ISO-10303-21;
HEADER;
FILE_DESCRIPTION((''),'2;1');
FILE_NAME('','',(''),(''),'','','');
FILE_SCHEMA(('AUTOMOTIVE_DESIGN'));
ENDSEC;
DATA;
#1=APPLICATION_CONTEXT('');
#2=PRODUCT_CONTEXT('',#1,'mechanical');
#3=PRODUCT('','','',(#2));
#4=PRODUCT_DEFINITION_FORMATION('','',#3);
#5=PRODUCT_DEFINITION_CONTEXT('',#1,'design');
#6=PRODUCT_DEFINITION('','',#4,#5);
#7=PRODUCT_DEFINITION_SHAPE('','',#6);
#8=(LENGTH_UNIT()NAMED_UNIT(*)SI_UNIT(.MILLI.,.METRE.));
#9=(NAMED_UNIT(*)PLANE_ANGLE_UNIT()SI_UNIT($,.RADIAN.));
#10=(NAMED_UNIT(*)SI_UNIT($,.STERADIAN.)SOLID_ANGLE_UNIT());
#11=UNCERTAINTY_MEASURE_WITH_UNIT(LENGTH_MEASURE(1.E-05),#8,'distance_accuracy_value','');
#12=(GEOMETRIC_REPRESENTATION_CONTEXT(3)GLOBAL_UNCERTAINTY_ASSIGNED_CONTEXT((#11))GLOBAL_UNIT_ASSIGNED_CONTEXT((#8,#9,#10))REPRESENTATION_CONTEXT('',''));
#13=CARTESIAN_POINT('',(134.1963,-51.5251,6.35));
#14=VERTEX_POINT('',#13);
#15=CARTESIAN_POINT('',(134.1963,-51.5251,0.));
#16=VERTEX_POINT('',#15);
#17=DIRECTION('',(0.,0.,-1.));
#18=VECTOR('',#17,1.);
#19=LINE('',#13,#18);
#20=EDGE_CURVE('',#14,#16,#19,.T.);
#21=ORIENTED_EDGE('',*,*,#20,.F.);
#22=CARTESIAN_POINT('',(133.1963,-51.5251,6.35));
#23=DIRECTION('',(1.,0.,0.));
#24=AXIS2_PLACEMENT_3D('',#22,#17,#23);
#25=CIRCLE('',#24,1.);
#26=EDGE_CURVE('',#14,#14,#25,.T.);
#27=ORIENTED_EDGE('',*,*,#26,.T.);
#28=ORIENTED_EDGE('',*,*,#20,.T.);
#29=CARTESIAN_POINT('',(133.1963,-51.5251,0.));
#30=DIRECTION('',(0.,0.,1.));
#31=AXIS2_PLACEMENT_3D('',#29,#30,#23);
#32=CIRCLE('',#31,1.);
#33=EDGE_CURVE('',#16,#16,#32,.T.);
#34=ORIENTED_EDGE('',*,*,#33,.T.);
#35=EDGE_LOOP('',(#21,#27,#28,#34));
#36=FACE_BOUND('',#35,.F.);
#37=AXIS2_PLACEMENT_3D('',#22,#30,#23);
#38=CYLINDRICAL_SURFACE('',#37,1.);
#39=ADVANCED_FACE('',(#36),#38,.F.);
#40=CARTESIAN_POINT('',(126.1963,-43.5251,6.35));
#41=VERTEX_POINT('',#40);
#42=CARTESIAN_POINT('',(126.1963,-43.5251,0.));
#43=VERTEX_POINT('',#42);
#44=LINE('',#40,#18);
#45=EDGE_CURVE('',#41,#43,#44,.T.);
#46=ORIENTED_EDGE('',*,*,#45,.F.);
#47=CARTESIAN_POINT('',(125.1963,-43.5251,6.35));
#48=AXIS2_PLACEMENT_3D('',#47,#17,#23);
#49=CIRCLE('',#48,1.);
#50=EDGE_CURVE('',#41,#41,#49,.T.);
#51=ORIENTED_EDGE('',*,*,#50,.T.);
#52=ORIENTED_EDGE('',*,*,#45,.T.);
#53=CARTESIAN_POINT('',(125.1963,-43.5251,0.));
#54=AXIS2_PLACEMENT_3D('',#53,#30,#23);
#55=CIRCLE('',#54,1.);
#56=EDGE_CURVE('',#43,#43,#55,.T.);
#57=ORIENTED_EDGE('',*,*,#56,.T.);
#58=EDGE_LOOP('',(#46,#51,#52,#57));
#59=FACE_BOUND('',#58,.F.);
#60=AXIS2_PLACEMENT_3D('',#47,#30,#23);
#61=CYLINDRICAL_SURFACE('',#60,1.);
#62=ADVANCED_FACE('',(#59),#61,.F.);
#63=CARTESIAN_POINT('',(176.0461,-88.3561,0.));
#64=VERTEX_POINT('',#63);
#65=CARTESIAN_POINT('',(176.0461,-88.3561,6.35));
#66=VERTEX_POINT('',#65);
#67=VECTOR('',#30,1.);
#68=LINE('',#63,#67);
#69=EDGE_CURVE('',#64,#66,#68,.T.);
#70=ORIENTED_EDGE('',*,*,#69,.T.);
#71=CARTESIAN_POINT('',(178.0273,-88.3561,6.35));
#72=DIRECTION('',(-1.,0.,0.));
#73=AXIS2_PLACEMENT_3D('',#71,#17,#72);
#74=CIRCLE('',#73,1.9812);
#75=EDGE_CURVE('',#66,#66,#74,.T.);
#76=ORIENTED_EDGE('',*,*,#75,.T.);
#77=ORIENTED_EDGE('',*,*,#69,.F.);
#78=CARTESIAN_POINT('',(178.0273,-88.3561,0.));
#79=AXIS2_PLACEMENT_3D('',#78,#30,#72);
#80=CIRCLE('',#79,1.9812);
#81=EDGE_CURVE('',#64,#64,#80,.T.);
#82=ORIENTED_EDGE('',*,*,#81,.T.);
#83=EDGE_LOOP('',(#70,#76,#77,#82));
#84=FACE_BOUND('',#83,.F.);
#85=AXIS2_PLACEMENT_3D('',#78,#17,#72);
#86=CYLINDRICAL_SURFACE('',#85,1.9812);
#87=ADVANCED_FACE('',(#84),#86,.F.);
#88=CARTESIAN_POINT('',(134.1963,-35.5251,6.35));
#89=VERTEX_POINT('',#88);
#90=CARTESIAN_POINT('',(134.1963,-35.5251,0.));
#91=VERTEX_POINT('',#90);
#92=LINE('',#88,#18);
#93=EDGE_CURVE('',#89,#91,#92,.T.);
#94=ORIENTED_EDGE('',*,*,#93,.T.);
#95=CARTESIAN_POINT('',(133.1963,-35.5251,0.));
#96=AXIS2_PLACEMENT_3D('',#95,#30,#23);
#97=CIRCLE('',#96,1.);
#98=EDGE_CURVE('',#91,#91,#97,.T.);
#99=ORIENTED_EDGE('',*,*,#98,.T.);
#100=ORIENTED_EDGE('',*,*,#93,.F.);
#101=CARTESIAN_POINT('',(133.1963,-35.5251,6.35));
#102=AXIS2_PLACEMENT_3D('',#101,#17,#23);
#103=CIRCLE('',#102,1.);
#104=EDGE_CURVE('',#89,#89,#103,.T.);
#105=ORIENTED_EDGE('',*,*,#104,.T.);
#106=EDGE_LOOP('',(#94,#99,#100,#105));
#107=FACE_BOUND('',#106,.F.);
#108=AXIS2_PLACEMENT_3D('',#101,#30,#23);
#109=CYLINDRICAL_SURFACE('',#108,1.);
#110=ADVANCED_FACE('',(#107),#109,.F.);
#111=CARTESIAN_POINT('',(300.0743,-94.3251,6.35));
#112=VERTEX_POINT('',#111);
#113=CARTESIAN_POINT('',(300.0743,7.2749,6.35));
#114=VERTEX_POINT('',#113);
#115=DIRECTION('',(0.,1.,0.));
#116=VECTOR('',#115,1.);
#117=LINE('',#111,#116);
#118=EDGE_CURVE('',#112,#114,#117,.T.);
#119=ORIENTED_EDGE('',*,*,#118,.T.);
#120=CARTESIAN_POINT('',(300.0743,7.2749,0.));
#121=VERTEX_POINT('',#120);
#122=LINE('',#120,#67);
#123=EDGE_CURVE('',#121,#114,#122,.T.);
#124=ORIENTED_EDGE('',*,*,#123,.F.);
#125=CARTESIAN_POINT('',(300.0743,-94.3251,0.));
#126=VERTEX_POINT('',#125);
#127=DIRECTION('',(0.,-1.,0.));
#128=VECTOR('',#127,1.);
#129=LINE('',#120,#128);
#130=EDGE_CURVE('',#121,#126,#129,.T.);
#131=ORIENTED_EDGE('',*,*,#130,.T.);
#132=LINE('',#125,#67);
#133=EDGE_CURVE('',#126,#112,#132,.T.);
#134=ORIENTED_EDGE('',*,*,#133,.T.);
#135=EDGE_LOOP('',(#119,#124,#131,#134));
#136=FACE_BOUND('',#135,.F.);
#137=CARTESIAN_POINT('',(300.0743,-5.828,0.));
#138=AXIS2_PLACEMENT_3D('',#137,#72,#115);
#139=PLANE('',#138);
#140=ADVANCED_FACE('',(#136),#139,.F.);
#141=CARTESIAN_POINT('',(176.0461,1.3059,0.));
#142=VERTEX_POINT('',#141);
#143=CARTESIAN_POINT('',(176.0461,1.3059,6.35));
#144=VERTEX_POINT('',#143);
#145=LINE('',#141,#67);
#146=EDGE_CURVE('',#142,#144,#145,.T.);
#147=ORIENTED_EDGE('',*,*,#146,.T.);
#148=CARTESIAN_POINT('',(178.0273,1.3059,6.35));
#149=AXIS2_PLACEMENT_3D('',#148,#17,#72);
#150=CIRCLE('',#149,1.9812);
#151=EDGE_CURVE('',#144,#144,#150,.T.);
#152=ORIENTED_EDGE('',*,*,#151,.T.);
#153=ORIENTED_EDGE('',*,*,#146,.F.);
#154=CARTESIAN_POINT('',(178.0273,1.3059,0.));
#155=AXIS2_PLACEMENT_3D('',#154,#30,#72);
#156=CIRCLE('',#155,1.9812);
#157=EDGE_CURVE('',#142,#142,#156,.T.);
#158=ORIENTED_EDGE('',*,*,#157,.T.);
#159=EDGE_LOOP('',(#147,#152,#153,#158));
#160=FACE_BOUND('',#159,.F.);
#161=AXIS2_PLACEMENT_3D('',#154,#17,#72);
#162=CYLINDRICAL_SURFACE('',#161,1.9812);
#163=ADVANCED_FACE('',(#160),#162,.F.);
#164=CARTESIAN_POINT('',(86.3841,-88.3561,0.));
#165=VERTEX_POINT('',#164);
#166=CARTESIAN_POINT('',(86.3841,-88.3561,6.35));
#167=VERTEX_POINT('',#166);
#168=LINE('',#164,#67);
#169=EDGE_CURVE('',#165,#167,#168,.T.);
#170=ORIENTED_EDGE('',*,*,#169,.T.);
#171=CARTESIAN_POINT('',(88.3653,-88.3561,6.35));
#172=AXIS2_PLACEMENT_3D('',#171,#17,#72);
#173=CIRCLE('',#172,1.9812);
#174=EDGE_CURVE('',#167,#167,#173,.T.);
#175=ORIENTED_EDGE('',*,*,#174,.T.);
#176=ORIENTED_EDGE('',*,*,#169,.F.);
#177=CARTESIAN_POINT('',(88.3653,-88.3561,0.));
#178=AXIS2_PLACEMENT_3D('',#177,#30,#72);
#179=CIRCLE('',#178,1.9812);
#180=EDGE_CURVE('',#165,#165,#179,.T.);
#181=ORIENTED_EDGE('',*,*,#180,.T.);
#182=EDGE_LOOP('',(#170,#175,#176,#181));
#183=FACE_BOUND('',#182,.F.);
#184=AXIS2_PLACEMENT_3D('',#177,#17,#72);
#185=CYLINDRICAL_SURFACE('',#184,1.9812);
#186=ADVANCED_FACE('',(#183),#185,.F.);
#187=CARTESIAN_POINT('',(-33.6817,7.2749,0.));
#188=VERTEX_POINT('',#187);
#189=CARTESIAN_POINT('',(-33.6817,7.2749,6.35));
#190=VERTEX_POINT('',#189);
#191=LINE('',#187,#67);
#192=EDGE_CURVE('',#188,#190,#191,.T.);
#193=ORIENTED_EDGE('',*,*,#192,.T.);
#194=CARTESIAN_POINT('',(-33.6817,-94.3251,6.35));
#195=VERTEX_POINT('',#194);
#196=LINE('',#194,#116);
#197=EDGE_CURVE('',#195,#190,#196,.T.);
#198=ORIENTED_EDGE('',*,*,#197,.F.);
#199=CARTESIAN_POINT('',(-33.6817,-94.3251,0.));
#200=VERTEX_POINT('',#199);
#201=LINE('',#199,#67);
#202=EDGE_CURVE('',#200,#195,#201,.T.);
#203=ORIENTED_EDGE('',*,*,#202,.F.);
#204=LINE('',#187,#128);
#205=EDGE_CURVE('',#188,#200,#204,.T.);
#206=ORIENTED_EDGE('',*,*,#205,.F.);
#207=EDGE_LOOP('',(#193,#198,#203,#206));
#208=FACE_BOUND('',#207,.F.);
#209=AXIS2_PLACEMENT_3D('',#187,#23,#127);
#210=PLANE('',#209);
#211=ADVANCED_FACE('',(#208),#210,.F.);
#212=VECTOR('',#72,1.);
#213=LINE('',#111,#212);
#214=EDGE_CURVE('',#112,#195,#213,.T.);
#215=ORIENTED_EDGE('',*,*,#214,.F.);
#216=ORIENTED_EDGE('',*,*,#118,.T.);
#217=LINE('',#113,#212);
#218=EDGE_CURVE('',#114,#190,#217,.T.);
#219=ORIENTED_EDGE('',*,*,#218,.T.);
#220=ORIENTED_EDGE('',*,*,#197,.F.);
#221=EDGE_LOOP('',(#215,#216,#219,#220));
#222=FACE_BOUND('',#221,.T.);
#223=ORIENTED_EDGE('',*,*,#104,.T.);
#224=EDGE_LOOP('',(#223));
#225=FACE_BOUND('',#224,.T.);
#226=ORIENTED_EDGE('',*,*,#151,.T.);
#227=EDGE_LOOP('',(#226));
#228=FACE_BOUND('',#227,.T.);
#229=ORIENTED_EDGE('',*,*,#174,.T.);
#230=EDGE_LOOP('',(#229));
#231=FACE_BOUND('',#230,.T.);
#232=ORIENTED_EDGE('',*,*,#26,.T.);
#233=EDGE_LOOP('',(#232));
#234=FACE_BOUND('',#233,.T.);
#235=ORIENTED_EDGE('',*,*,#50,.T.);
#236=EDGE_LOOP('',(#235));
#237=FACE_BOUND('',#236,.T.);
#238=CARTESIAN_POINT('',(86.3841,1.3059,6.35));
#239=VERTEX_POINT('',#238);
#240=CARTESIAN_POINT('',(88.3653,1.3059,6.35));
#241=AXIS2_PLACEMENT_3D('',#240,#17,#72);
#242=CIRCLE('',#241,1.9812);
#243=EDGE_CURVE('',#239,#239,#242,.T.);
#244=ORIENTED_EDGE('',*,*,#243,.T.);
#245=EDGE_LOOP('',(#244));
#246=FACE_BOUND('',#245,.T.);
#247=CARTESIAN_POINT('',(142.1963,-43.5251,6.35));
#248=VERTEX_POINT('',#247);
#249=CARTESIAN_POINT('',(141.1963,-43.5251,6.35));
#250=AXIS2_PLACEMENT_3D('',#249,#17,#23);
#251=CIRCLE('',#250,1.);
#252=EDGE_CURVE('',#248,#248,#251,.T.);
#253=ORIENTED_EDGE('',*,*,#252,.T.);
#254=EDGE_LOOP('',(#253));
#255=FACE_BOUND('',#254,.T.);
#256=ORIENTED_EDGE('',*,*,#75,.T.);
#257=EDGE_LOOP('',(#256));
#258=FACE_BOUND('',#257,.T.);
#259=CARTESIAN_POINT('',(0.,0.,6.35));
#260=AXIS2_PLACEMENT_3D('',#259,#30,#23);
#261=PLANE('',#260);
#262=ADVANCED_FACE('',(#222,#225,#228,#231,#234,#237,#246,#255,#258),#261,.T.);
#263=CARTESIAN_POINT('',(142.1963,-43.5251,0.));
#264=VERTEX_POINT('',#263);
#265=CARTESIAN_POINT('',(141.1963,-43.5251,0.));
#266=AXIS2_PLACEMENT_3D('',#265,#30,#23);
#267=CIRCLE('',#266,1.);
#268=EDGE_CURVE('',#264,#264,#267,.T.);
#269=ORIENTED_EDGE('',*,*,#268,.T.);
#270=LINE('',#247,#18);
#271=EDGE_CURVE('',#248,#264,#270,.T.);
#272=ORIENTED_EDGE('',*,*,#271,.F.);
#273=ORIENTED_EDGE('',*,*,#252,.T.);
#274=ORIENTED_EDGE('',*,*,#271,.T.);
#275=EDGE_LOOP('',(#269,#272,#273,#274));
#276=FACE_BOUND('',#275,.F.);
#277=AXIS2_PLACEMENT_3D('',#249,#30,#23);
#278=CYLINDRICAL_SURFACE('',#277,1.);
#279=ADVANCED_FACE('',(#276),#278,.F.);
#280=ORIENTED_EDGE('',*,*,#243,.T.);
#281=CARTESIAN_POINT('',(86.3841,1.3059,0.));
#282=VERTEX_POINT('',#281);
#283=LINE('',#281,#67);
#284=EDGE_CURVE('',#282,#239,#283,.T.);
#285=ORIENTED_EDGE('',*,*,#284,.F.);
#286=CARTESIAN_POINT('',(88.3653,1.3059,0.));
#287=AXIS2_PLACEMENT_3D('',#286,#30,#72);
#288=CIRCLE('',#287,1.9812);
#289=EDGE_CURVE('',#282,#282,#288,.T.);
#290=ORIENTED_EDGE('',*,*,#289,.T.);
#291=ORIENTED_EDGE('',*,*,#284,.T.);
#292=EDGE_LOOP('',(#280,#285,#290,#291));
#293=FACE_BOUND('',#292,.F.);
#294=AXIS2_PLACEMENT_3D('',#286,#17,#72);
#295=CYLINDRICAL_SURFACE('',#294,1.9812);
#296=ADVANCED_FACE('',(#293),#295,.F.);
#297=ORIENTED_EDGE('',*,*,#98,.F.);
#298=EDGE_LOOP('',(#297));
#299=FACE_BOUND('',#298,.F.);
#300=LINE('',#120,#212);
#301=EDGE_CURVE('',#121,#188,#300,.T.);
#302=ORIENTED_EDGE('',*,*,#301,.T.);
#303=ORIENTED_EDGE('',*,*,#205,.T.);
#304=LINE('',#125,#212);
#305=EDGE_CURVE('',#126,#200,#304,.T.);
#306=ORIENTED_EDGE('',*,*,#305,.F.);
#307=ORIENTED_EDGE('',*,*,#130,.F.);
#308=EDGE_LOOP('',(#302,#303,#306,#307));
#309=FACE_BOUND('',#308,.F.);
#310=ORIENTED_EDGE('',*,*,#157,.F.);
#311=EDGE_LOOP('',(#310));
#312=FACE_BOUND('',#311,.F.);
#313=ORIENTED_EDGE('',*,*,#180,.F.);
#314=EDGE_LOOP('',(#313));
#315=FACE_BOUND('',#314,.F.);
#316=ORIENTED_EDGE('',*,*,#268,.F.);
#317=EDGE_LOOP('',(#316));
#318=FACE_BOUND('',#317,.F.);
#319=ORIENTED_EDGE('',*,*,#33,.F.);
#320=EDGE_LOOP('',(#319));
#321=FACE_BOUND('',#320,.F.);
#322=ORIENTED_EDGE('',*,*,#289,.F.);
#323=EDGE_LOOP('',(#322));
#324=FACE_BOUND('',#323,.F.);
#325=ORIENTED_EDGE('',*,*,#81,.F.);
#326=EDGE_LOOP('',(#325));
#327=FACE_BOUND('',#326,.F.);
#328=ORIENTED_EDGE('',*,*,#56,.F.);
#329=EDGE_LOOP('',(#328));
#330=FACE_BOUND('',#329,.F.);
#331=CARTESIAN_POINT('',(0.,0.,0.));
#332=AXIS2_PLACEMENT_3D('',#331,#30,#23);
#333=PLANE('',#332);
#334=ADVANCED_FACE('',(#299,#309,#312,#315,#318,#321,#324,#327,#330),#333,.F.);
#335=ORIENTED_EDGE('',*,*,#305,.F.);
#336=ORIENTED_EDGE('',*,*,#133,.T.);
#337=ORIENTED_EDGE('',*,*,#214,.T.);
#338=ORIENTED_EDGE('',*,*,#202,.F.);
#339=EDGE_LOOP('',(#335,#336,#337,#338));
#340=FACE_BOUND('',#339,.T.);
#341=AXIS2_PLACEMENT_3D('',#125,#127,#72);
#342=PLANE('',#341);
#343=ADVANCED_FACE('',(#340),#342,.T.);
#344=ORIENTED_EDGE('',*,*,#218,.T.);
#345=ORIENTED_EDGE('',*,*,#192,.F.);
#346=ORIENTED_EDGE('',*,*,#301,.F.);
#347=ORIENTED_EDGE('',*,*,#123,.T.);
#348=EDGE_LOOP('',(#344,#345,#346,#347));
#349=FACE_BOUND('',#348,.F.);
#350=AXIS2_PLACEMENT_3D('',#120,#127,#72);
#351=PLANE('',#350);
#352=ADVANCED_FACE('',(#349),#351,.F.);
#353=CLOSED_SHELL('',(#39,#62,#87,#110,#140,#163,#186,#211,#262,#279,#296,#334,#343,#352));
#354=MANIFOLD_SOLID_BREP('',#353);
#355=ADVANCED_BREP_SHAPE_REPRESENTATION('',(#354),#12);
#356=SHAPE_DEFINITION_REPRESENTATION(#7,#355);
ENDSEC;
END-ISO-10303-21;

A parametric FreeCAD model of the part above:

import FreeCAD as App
import Part
import Sketcher

V = App.Vector
Q = App.Units.Quantity


def add_polygon(sketch, points):
    """Adds a closed chain of lines whose ends are joined by coincident constraints."""
    first, n = sketch.GeometryCount, len(points)
    for a, b in zip(points, points[1:] + points[:1]):
        sketch.addGeometry(Part.LineSegment(App.Vector(*a, 0), App.Vector(*b, 0)), False)
    for i in range(n):
        sketch.addConstraint(Sketcher.Constraint("Coincident", first + i, 2, first + (i + 1) % n, 1))

doc = App.newDocument("Part")
body = doc.addObject("PartDesign::Body", "Body")

# Sketch on XY plane
sketch1 = body.newObject("Sketcher::SketchObject", "Sketch")
sketch1.AttachmentSupport = (doc.getObject("XY_Plane"), [""])
sketch1.MapMode = "FlatFace"
add_polygon(sketch1, [(-33.6817, 7.2749), (-33.6817, -94.3251), (300.0743, -94.3251), (300.0743, 7.2749)])  # lines 0-3
sketch1.addConstraint(Sketcher.Constraint("Vertical", 0))
sketch1.addConstraint(Sketcher.Constraint("Horizontal", 1))
sketch1.addConstraint(Sketcher.Constraint("Vertical", 2))
sketch1.addConstraint(Sketcher.Constraint("Horizontal", 3))
sketch1.addConstraint(Sketcher.Constraint("DistanceY", 0, 2, 0, 1, Q("4 in")))
sketch1.addConstraint(Sketcher.Constraint("DistanceX", 1, 1, 1, 2, Q("13.14 in")))
sketch1.addConstraint(Sketcher.Constraint("DistanceX", 0, 2, -1, 1, Q("33.6817 mm")))
sketch1.addConstraint(Sketcher.Constraint("DistanceY", 0, 2, -1, 1, Q("94.325 mm")))
pad1 = body.newObject("PartDesign::Pad", "Pad")
pad1.Profile = sketch1
pad1.Length = Q("0.25 in")

# Sketch on XY plane
sketch2 = body.newObject("Sketcher::SketchObject", "Sketch001")
sketch2.AttachmentSupport = (doc.getObject("XY_Plane"), [""])
sketch2.MapMode = "FlatFace"
sketch2.AttachmentOffset = App.Placement(V(0, 0, 0.25 * 25.4), App.Rotation())
sketch2.addGeometry(Part.Circle(V(141.1963, -43.5251, 0), V(0, 0, 1), 1), False)
sketch2.addGeometry(Part.Circle(V(133.1963, -35.5251, 0), V(0, 0, 1), 1), False)
sketch2.addGeometry(Part.Circle(V(133.1963, -51.5251, 0), V(0, 0, 1), 1), False)
sketch2.addGeometry(Part.Circle(V(125.1963, -43.5251, 0), V(0, 0, 1), 1), False)
sketch2.addConstraint(Sketcher.Constraint("Equal", 0, 1))
sketch2.addConstraint(Sketcher.Constraint("Equal", 1, 2))
sketch2.addConstraint(Sketcher.Constraint("Equal", 2, 3))
sketch2.addConstraint(Sketcher.Constraint("Horizontal", 0, 3, 3, 3))
sketch2.addConstraint(Sketcher.Constraint("Vertical", 1, 3, 2, 3))
sketch2.addConstraint(Sketcher.Constraint("Diameter", 0, Q("2 mm")))
sketch2.addConstraint(Sketcher.Constraint("DistanceY", 2, 3, 1, 3, Q("16 mm")))
sketch2.addConstraint(Sketcher.Constraint("DistanceX", 3, 3, 0, 3, Q("16 mm")))
sketch2.addConstraint(Sketcher.Constraint("DistanceX", -1, 1, 3, 3, Q("4.929 in")))
sketch2.addConstraint(Sketcher.Constraint("DistanceY", 0, 3, -1, 1, Q("43.525 mm")))
sketch2.addConstraint(Sketcher.Constraint("DistanceX", -1, 1, 1, 3, Q("133.1963 mm")))
sketch2.addConstraint(Sketcher.Constraint("DistanceY", 1, 3, -1, 1, Q("35.525 mm")))
pocket1 = body.newObject("PartDesign::Pocket", "Pocket")
pocket1.Profile = sketch2
pocket1.Length = Q("0.25 in")

# Sketch on XY plane
sketch3 = body.newObject("Sketcher::SketchObject", "Sketch002")
sketch3.AttachmentSupport = (doc.getObject("XY_Plane"), [""])
sketch3.MapMode = "FlatFace"
sketch3.addGeometry(Part.Circle(V(178.0273, -88.3561, 0), V(0, 0, 1), 1.9812), False)
sketch3.addGeometry(Part.Circle(V(88.3653, -88.3561, 0), V(0, 0, 1), 1.9812), False)
sketch3.addGeometry(Part.Circle(V(178.0273, 1.3059, 0), V(0, 0, 1), 1.9812), False)
sketch3.addGeometry(Part.Circle(V(88.3653, 1.3059, 0), V(0, 0, 1), 1.9812), False)
sketch3.addConstraint(Sketcher.Constraint("Equal", 0, 1))
sketch3.addConstraint(Sketcher.Constraint("Equal", 1, 2))
sketch3.addConstraint(Sketcher.Constraint("Equal", 2, 3))
sketch3.addConstraint(Sketcher.Constraint("Horizontal", 0, 3, 1, 3))
sketch3.addConstraint(Sketcher.Constraint("Horizontal", 2, 3, 3, 3))
sketch3.addConstraint(Sketcher.Constraint("Vertical", 0, 3, 2, 3))
sketch3.addConstraint(Sketcher.Constraint("Vertical", 1, 3, 3, 3))
sketch3.addConstraint(Sketcher.Constraint("Diameter", 0, Q("0.156 in")))
sketch3.addConstraint(Sketcher.Constraint("DistanceX", 1, 3, 0, 3, Q("3.53 in")))
sketch3.addConstraint(Sketcher.Constraint("DistanceY", 0, 3, 2, 3, Q("3.53 in")))
sketch3.addConstraint(Sketcher.Constraint("DistanceX", -1, 1, 0, 3, Q("178.0273 mm")))
sketch3.addConstraint(Sketcher.Constraint("DistanceY", 0, 3, -1, 1, Q("88.356 mm")))
pocket2 = body.newObject("PartDesign::Pocket", "Pocket001")
pocket2.Profile = sketch3
pocket2.Length = Q("0.25 in")
pocket2.Reversed = True

doc.recompute()
